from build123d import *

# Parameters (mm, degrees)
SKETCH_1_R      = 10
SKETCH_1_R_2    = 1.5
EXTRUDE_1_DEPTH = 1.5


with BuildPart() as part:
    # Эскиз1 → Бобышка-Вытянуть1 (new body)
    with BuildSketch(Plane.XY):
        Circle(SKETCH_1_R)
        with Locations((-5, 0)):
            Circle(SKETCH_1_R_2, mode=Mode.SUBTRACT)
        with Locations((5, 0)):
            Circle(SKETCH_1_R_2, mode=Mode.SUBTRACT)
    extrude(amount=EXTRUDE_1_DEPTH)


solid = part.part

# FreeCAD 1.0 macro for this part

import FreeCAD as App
import Part
import Sketcher

V = App.Vector
Q = App.Units.Quantity

doc = App.newDocument("Part")
body = doc.addObject("PartDesign::Body", "Body")

# Sketch on XY plane
sketch1 = doc.addObject("Sketcher::SketchObject", "Sketch")
body.addObject(sketch1)
sketch1.AttachmentSupport = (doc.XY_Plane, [""])
sketch1.MapMode = "FlatFace"
sketch1.addGeometry([
    Part.Circle(V(0, 0, 0), V(0, 0, 1), 10),
    Part.Circle(V(-5, 0, 0), V(0, 0, 1), 1.5),
    Part.Circle(V(5, 0, 0), V(0, 0, 1), 1.5),
], False)
sketch1.addConstraint([
    Sketcher.Constraint("Coincident", 0, 3, -1, 1),
    Sketcher.Constraint("Equal", 1, 2),
    Sketcher.Constraint("Symmetric", 1, 3, 2, 3, -1, 1),
    Sketcher.Constraint("PointOnObject", 1, 3, -1),
    Sketcher.Constraint("Diameter", 0, Q("20 mm")),
    Sketcher.Constraint("Diameter", 1, Q("3 mm")),
    Sketcher.Constraint("DistanceX", 1, 3, -1, 1, Q("5 mm")),
])
pad1 = doc.addObject("PartDesign::Pad", "Pad")
body.addObject(pad1)
pad1.Profile = sketch1
pad1.Length = 1.5

doc.recompute()
